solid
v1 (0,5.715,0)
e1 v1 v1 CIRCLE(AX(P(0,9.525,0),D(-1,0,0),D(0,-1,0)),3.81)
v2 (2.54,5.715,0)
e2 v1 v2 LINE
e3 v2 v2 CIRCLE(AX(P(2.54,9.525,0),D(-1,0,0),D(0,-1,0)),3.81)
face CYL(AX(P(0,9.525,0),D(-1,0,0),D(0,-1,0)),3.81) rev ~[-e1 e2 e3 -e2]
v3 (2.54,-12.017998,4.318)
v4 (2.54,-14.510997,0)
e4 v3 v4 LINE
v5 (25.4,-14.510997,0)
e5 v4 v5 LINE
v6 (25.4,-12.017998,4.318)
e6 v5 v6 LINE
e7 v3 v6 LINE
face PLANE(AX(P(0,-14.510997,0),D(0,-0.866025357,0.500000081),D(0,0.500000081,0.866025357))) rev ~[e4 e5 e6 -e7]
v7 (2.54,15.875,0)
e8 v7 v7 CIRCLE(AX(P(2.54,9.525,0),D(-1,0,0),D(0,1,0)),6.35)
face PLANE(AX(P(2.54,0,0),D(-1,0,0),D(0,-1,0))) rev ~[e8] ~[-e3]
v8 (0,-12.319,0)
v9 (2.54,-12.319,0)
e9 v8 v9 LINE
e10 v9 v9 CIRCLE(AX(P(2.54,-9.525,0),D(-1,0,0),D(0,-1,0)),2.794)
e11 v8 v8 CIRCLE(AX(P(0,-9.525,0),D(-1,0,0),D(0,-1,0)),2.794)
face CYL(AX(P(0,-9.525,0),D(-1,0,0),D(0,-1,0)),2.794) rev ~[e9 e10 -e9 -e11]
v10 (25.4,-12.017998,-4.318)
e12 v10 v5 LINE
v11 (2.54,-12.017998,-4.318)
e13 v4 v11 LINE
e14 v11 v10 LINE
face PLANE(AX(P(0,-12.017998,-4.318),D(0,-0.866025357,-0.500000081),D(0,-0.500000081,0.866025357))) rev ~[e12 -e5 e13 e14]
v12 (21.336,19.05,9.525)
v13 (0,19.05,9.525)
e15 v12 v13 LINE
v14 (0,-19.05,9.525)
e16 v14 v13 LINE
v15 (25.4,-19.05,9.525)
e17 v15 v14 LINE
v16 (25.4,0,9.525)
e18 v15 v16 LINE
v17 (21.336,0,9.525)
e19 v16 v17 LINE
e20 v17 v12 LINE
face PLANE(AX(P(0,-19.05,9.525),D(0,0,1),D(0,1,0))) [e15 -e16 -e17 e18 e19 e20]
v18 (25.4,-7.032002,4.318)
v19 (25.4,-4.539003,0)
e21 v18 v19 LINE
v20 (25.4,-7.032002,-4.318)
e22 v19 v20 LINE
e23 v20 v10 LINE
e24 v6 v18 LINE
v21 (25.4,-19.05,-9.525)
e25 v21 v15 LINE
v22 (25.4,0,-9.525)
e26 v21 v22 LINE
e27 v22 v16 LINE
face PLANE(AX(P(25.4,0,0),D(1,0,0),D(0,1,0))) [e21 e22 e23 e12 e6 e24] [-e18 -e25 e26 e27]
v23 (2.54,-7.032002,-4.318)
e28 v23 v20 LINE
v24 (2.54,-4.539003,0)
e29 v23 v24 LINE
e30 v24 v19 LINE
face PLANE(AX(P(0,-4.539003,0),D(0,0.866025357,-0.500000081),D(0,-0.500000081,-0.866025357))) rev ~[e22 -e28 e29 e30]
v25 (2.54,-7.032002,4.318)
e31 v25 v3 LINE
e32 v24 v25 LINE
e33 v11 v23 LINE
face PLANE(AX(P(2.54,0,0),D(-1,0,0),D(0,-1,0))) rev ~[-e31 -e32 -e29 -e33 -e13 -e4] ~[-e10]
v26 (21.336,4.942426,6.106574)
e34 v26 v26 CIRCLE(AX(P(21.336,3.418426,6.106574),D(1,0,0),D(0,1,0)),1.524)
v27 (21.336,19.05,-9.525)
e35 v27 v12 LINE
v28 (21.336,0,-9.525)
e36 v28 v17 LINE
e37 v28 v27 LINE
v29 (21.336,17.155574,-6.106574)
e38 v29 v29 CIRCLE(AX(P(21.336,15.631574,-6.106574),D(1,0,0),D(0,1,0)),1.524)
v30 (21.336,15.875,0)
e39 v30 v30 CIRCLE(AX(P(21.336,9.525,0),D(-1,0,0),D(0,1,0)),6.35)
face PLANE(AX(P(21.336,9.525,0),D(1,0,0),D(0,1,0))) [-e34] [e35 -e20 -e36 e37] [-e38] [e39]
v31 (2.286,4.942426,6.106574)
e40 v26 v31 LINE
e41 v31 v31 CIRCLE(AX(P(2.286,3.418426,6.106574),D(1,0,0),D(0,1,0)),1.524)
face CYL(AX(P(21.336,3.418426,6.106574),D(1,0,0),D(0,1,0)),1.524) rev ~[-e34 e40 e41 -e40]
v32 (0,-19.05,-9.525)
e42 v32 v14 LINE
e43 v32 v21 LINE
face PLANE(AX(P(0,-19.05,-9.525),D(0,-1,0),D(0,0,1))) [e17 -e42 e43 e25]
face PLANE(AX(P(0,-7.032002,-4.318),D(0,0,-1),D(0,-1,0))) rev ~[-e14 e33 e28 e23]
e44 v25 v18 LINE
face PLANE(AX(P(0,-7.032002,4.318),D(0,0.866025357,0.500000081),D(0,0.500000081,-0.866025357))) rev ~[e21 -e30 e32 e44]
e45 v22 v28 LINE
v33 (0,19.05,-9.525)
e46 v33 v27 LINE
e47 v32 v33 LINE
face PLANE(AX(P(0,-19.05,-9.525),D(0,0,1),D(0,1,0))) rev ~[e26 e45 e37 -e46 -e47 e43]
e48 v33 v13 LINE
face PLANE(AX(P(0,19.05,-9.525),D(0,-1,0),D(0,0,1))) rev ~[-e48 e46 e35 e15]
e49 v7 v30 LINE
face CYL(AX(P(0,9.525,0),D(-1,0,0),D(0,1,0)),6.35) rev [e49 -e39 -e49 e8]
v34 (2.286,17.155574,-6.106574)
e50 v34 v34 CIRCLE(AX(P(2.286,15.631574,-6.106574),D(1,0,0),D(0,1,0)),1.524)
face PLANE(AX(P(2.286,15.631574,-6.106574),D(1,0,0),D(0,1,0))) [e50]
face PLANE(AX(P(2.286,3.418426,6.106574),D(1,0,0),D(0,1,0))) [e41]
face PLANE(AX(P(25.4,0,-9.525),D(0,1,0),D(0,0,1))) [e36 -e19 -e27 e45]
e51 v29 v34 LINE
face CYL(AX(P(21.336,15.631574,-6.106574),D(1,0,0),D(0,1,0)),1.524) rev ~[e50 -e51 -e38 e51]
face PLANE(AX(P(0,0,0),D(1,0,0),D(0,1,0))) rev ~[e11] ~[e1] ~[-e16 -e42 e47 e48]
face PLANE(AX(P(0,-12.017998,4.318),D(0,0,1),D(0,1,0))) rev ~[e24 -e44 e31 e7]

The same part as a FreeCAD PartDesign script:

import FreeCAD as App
import Part
import Sketcher
from FreeCAD import Vector
Q = App.Units.Quantity

doc = App.newDocument("Part")
body = doc.addObject("PartDesign::Body", "Body")

# Sketch on YZ plane
sketch1 = body.newObject("Sketcher::SketchObject", "Sketch")
sketch1.AttachmentSupport = (doc.getObject("YZ_Plane"), [""])
sketch1.MapMode = "FlatFace"
sketch1.addGeometry(Part.LineSegment(Vector(-19.1, 9.5, 0), Vector(-19.1, -9.5, 0)), False)
sketch1.addGeometry(Part.LineSegment(Vector(-19.1, -9.5, 0), Vector(19.1, -9.5, 0)), False)
sketch1.addGeometry(Part.LineSegment(Vector(19.1, -9.5, 0), Vector(19.1, 9.5, 0)), False)
sketch1.addGeometry(Part.LineSegment(Vector(19.1, 9.5, 0), Vector(-19.1, 9.5, 0)), False)
sketch1.addGeometry(Part.LineSegment(Vector(-12, -4.3, 0), Vector(-14.5, 0, 0)), False)
sketch1.addGeometry(Part.LineSegment(Vector(-14.5, 0, 0), Vector(-12, 4.3, 0)), False)
sketch1.addGeometry(Part.LineSegment(Vector(-12, 4.3, 0), Vector(-7, 4.3, 0)), False)
sketch1.addGeometry(Part.LineSegment(Vector(-7, 4.3, 0), Vector(-4.5, 0, 0)), False)
sketch1.addGeometry(Part.LineSegment(Vector(-4.5, 0, 0), Vector(-7, -4.3, 0)), False)
sketch1.addGeometry(Part.LineSegment(Vector(-7, -4.3, 0), Vector(-12, -4.3, 0)), False)
sketch1.addGeometry(Part.Circle(Vector(9.5, 0, 0), Vector(0, 0, 1), 6.3), False)
sketch1.addConstraint(Sketcher.Constraint("Coincident", 0, 2, 1, 1))
sketch1.addConstraint(Sketcher.Constraint("Coincident", 1, 2, 2, 1))
sketch1.addConstraint(Sketcher.Constraint("Coincident", 2, 2, 3, 1))
sketch1.addConstraint(Sketcher.Constraint("Coincident", 3, 2, 0, 1))
sketch1.addConstraint(Sketcher.Constraint("Coincident", 4, 2, 5, 1))
sketch1.addConstraint(Sketcher.Constraint("Coincident", 5, 2, 6, 1))
sketch1.addConstraint(Sketcher.Constraint("Coincident", 6, 2, 7, 1))
sketch1.addConstraint(Sketcher.Constraint("Coincident", 7, 2, 8, 1))
sketch1.addConstraint(Sketcher.Constraint("Coincident", 8, 2, 9, 1))
sketch1.addConstraint(Sketcher.Constraint("Coincident", 9, 2, 4, 1))
sketch1.addConstraint(Sketcher.Constraint("Vertical", 0))
sketch1.addConstraint(Sketcher.Constraint("Horizontal", 1))
sketch1.addConstraint(Sketcher.Constraint("Vertical", 2))
sketch1.addConstraint(Sketcher.Constraint("Horizontal", 3))
sketch1.addConstraint(Sketcher.Constraint("Horizontal", 6))
sketch1.addConstraint(Sketcher.Constraint("Horizontal", 9))
sketch1.addConstraint(Sketcher.Constraint("Symmetric", 0, 2, 2, 2, -1, 1))
sketch1.addConstraint(Sketcher.Constraint("Symmetric", 6, 2, 8, 2, -1))
sketch1.addConstraint(Sketcher.Constraint("PointOnObject", 10, 3, -1))
sketch1.addConstraint(Sketcher.Constraint("PointOnObject", 4, 2, -1))
sketch1.addConstraint(Sketcher.Constraint("PointOnObject", 7, 2, -1))
sketch1.addConstraint(Sketcher.Constraint("Parallel", 4, 7))
sketch1.addConstraint(Sketcher.Constraint("Parallel", 5, 8))
sketch1.addConstraint(Sketcher.Constraint("Diameter", 10, Q("0.5 in")))
sketch1.addConstraint(Sketcher.Constraint("DistanceX", 1, 1, 1, 2, Q("1.5 in")))
sketch1.addConstraint(Sketcher.Constraint("Angle", 4, Q("120.000005 deg")))
sketch1.addConstraint(Sketcher.Constraint("DistanceY", 0, 2, 0, 1, Q("0.75 in")))
sketch1.addConstraint(Sketcher.Constraint("DistanceY", -1, 1, 5, 2, Q("0.17 in")))
sketch1.addConstraint(Sketcher.Constraint("DistanceX", -1, 1, 10, 3, Q("0.375 in")))
sketch1.addConstraint(Sketcher.Constraint("DistanceX", 5, 2, 10, 3, 21.542998))
sketch1.addConstraint(Sketcher.Constraint("DistanceX", 6, 1, 6, 2, 4.985996))
pad1 = body.newObject("PartDesign::Pad", "Pad")
pad1.Profile = sketch1
pad1.Length = Q("1 in")

# Sketch on YZ plane
sketch2 = body.newObject("Sketcher::SketchObject", "Sketch001")
sketch2.AttachmentSupport = (doc.getObject("YZ_Plane"), [""])
sketch2.MapMode = "FlatFace"
sketch2.addGeometry(Part.LineSegment(Vector(19.1, 9.5, 0), Vector(19.1, -9.5, 0)), False)
sketch2.addGeometry(Part.LineSegment(Vector(19.1, -9.5, 0), Vector(-19.1, -9.5, 0)), False)
sketch2.addGeometry(Part.LineSegment(Vector(-19.1, -9.5, 0), Vector(-19.1, 9.5, 0)), False)
sketch2.addGeometry(Part.LineSegment(Vector(-19.1, 9.5, 0), Vector(19.1, 9.5, 0)), False)
sketch2.addGeometry(Part.Circle(Vector(9.5, 0, 0), Vector(0, 0, 1), 3.8), False)
sketch2.addGeometry(Part.Circle(Vector(-9.5, 0, 0), Vector(0, 0, 1), 2.8), False)
sketch2.addConstraint(Sketcher.Constraint("Coincident", 0, 2, 1, 1))
sketch2.addConstraint(Sketcher.Constraint("Coincident", 1, 2, 2, 1))
sketch2.addConstraint(Sketcher.Constraint("Coincident", 2, 2, 3, 1))
sketch2.addConstraint(Sketcher.Constraint("Coincident", 3, 2, 0, 1))
sketch2.addConstraint(Sketcher.Constraint("Vertical", 0))
sketch2.addConstraint(Sketcher.Constraint("Horizontal", 1))
sketch2.addConstraint(Sketcher.Constraint("Vertical", 2))
sketch2.addConstraint(Sketcher.Constraint("Horizontal", 3))
sketch2.addConstraint(Sketcher.Constraint("Symmetric", 4, 3, 5, 3, -1, 1))
sketch2.addConstraint(Sketcher.Constraint("Symmetric", 0, 2, 2, 2, -1, 1))
sketch2.addConstraint(Sketcher.Constraint("PointOnObject", 4, 3, -1))
sketch2.addConstraint(Sketcher.Constraint("Diameter", 4, Q("0.3 in")))
sketch2.addConstraint(Sketcher.Constraint("Diameter", 5, Q("0.22 in")))
sketch2.addConstraint(Sketcher.Constraint("DistanceX", 1, 2, 1, 1, Q("1.5 in")))
sketch2.addConstraint(Sketcher.Constraint("DistanceY", 0, 2, 0, 1, Q("0.75 in")))
sketch2.addConstraint(Sketcher.Constraint("DistanceX", 5, 3, 4, 3, Q("0.75 in")))
pad2 = body.newObject("PartDesign::Pad", "Pad001")
pad2.Profile = sketch2
pad2.Length = Q("0.1 in")

# Sketch on YZ plane
sketch3 = body.newObject("Sketcher::SketchObject", "Sketch002")
sketch3.AttachmentSupport = (doc.getObject("YZ_Plane"), [""])
sketch3.MapMode = "FlatFace"
sketch3.AttachmentOffset = App.Placement(Vector(0, 0, 1 * 25.4), App.Rotation())
sketch3.addGeometry(Part.LineSegment(Vector(0, 10, 0), Vector(0, -10, 0)), False)
sketch3.addGeometry(Part.LineSegment(Vector(0, -10, 0), Vector(19, -10, 0)), False)
sketch3.addGeometry(Part.LineSegment(Vector(19, -10, 0), Vector(19, 10, 0)), False)
sketch3.addGeometry(Part.LineSegment(Vector(19, 10, 0), Vector(0, 10, 0)), False)
sketch3.addConstraint(Sketcher.Constraint("Coincident", 0, 2, 1, 1))
sketch3.addConstraint(Sketcher.Constraint("Coincident", 1, 2, 2, 1))
sketch3.addConstraint(Sketcher.Constraint("Coincident", 2, 2, 3, 1))
sketch3.addConstraint(Sketcher.Constraint("Coincident", 3, 2, 0, 1))
sketch3.addConstraint(Sketcher.Constraint("Vertical", 0))
sketch3.addConstraint(Sketcher.Constraint("Horizontal", 1))
sketch3.addConstraint(Sketcher.Constraint("Vertical", 2))
sketch3.addConstraint(Sketcher.Constraint("Horizontal", 3))
sketch3.addConstraint(Sketcher.Constraint("Symmetric", 0, 2, 3, 2, -1, 1))
sketch3.addConstraint(Sketcher.Constraint("Equal", 3, 0))
sketch3.addConstraint(Sketcher.Constraint("DistanceX", 1, 1, 1, 2, Q("0.75 in")))
pocket1 = body.newObject("PartDesign::Pocket", "Pocket")
pocket1.Profile = sketch3
pocket1.Length = Q("0.16 in")

# Sketch on YZ plane
sketch4 = body.newObject("Sketcher::SketchObject", "Sketch003")
sketch4.AttachmentSupport = (doc.getObject("YZ_Plane"), [""])
sketch4.MapMode = "FlatFace"
sketch4.AttachmentOffset = App.Placement(Vector(0, 0, 0.84 * 25.4), App.Rotation())
sketch4.addGeometry(Part.Circle(Vector(3.4, 6.1, 0), Vector(0, 0, 1), 1.5), False)
sketch4.addGeometry(Part.Circle(Vector(15.6, -6.1, 0), Vector(0, 0, 1), 1.5), False)
sketch4.addConstraint(Sketcher.Constraint("Equal", 0, 1))
sketch4.addConstraint(Sketcher.Constraint("Diameter", 0, Q("0.12 in")))
sketch4.addConstraint(Sketcher.Constraint("DistanceX", -1, 1, 0, 3, 3.418426))
sketch4.addConstraint(Sketcher.Constraint("DistanceY", -1, 1, 0, 3, 6.106574))
sketch4.addConstraint(Sketcher.Constraint("DistanceX", -1, 1, 1, 3, 15.631574))
sketch4.addConstraint(Sketcher.Constraint("DistanceY", 1, 3, -1, 1, 6.106574))
pocket2 = body.newObject("PartDesign::Pocket", "Pocket001")
pocket2.Profile = sketch4
pocket2.Length = Q("0.75 in")

doc.recompute()
